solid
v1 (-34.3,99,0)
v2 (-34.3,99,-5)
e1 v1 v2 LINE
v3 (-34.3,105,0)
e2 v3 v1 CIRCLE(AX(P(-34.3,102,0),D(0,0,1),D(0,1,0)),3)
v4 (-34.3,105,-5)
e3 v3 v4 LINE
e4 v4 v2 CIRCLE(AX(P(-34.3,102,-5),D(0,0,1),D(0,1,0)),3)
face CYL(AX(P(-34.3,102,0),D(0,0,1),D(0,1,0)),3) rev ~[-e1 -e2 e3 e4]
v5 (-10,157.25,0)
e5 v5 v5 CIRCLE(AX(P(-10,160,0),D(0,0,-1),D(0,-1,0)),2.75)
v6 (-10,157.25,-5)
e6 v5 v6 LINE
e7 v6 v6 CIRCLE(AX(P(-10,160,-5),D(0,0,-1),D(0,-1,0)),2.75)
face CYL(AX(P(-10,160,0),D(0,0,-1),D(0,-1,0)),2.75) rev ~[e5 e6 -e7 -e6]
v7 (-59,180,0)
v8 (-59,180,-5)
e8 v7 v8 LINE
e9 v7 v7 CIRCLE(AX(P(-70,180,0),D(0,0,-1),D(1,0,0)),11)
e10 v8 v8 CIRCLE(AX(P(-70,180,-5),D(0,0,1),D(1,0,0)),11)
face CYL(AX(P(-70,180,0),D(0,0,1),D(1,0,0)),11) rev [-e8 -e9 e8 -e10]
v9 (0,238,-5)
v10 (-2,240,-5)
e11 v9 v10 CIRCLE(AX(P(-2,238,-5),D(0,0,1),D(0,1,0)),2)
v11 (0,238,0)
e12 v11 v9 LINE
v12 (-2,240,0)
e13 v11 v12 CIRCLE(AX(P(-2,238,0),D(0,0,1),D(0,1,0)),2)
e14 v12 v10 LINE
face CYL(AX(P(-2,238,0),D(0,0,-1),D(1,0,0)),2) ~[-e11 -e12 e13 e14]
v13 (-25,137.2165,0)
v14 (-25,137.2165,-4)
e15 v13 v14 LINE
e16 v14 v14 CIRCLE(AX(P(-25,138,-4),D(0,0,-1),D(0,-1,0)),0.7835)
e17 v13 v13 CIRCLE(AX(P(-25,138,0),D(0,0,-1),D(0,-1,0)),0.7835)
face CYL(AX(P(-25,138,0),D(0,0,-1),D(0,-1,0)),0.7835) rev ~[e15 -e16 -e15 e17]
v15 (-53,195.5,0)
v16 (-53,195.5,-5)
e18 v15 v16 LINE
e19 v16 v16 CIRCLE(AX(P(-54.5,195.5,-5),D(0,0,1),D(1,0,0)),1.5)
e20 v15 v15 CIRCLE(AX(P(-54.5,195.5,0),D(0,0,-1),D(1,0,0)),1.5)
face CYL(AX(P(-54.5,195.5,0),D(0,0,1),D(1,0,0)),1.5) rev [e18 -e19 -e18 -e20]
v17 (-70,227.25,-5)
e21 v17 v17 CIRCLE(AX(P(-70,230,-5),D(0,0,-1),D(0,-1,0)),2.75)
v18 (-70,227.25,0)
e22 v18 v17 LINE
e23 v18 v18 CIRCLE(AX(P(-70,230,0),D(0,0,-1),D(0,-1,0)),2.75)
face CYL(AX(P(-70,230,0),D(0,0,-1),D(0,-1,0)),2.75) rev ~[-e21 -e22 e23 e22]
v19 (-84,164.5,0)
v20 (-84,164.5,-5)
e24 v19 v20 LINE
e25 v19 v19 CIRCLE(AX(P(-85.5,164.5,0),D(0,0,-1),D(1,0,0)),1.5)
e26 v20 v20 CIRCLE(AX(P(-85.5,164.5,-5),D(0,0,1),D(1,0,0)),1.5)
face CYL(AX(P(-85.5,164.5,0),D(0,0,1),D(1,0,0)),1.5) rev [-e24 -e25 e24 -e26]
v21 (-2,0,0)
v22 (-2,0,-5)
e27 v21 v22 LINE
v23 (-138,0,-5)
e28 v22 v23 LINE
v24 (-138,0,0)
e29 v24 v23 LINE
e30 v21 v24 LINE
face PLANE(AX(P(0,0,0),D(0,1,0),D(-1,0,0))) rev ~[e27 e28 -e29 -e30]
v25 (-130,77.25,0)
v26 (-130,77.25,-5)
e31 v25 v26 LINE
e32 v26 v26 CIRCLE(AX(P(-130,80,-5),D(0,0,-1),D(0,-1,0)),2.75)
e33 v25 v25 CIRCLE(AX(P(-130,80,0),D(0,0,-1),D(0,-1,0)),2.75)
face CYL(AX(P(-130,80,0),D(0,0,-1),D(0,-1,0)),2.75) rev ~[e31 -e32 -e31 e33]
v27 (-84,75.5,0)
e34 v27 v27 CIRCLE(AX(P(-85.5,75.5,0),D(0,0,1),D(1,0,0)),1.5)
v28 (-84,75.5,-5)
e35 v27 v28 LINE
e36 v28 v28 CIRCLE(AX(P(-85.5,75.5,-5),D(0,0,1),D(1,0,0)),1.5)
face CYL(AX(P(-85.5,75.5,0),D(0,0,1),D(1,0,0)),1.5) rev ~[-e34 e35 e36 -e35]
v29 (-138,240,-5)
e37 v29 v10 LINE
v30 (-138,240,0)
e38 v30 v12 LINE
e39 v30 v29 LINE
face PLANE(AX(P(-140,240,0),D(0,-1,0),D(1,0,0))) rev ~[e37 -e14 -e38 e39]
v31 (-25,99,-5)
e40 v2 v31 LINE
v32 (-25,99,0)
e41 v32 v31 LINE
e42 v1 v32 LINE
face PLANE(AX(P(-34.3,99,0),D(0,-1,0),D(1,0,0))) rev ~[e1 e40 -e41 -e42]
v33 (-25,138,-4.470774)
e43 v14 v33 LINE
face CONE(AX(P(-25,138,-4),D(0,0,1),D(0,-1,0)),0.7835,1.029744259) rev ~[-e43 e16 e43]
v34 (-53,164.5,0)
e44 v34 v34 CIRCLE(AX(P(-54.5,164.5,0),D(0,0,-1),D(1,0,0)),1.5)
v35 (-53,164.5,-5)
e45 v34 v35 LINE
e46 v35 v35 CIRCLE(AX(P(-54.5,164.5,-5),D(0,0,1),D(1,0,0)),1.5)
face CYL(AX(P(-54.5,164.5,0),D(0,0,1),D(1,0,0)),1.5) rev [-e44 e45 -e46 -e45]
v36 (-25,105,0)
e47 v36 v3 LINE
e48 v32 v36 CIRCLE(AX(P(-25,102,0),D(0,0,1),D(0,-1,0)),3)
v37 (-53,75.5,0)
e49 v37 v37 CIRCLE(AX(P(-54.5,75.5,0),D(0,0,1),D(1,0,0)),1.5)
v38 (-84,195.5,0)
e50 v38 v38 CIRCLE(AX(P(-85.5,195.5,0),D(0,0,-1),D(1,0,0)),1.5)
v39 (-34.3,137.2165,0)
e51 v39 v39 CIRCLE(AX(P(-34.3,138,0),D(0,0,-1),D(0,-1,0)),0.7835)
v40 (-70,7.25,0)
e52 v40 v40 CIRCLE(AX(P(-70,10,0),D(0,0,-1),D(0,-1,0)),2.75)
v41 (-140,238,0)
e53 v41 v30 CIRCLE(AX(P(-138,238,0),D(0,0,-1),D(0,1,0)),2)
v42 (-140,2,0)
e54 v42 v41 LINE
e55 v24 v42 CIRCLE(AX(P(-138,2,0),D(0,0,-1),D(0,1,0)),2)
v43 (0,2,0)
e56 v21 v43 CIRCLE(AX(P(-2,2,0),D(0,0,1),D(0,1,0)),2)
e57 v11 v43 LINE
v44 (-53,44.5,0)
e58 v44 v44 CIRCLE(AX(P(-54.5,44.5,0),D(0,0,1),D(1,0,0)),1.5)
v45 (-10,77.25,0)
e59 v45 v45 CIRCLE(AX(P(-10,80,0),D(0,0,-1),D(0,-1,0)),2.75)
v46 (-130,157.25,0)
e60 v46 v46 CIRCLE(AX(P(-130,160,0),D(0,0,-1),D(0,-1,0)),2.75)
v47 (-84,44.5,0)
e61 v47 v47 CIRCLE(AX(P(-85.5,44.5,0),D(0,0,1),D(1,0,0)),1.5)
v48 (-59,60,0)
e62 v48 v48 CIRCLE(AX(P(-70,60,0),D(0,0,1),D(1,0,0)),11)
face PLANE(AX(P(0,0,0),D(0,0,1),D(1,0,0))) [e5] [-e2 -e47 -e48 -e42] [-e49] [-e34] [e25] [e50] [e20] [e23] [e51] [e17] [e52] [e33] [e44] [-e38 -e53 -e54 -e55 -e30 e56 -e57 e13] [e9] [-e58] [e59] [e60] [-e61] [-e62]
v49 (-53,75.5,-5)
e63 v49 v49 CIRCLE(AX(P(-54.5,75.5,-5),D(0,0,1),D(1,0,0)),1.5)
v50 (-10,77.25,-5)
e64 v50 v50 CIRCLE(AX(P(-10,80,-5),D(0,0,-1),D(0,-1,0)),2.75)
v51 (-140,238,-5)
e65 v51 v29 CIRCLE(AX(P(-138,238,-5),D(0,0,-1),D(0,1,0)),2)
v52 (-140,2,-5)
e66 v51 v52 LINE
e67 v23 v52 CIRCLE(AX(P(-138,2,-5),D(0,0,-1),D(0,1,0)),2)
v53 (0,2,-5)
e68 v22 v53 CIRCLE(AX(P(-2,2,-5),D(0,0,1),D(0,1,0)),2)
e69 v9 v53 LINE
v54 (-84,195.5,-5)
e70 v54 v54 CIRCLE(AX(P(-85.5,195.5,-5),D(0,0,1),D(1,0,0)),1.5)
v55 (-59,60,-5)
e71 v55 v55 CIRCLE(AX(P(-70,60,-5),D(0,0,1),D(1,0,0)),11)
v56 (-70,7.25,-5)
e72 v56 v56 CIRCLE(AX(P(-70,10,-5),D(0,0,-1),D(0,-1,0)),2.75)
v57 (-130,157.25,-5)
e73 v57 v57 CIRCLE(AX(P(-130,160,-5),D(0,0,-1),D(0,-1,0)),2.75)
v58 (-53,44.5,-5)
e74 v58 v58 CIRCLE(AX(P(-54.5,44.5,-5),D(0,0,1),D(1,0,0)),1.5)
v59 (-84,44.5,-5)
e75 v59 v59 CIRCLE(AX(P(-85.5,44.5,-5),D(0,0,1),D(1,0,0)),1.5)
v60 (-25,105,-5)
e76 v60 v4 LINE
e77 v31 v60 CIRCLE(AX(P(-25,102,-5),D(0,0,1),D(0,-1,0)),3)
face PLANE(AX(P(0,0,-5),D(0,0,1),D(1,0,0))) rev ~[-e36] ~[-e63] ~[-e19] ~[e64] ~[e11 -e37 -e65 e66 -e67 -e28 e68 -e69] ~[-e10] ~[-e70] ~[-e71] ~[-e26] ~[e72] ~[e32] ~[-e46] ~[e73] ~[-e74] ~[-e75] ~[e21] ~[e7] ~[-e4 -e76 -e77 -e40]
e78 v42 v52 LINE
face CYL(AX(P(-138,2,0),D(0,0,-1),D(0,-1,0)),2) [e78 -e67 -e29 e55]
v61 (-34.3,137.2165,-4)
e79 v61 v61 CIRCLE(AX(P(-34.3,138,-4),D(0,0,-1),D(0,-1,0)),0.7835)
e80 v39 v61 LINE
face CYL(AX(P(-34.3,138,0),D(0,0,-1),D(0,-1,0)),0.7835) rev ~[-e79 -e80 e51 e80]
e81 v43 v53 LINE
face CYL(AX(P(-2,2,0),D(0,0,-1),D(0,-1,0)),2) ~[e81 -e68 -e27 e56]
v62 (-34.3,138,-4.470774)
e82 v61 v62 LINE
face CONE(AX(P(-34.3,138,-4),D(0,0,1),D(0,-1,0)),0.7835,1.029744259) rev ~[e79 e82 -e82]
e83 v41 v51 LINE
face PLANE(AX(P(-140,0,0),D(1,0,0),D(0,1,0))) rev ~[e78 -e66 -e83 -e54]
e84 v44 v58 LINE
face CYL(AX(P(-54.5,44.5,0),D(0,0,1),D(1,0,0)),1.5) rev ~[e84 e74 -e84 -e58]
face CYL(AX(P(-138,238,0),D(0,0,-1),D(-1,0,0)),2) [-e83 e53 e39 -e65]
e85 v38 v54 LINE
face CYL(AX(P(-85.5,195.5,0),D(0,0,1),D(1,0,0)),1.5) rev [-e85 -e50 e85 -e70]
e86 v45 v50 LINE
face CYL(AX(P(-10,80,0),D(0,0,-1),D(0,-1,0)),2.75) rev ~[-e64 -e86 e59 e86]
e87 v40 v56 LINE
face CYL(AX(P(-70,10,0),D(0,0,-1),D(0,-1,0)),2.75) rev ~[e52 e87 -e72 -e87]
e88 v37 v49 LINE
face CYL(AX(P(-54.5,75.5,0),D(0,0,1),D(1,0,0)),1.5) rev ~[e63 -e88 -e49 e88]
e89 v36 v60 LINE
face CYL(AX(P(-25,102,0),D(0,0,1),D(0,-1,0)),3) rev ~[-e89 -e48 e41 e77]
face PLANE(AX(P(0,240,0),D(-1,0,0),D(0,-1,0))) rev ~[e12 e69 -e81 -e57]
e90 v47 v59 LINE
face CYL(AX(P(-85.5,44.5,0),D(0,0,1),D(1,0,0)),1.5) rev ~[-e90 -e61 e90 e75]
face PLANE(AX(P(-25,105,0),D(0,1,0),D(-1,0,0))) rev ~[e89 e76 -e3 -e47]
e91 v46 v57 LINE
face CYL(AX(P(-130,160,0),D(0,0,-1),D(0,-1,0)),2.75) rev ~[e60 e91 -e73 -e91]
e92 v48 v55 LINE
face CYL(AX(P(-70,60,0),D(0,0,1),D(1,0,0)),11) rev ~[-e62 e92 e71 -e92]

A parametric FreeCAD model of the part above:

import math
import FreeCAD as App
import Part
import Sketcher

V = App.Vector
Q = App.Units.Quantity


def edges_at(feature, points):
    """Names of the edges that pass closest to the given points."""
    edges = feature.Shape.Edges
    near = lambda p: min(range(len(edges)), key=lambda i: edges[i].distToShape(Part.Vertex(*p))[0])
    return sorted({f"Edge{near(p) + 1}" for p in points})


def add_polygon(sketch, points):
    """Adds a closed chain of lines whose ends are joined by coincident constraints."""
    first, n = sketch.GeometryCount, len(points)
    for a, b in zip(points, points[1:] + points[:1]):
        sketch.addGeometry(Part.LineSegment(App.Vector(*a, 0), App.Vector(*b, 0)), False)
    for i in range(n):
        sketch.addConstraint(Sketcher.Constraint("Coincident", first + i, 2, first + (i + 1) % n, 1))

doc = App.newDocument("Part")
params = doc.addObject("Spreadsheet::Sheet", "Params")
for row, (alias, value) in enumerate([
    ("sketch1_width", "140 mm"),
    ("sketch1_height", "240 mm"),
    ("pad1_length", "5 mm"),
    ("fillet_radius", "2 mm"),
    ("sketch2_diameter", "22 mm"),
    ("sketch2_diameter2", "3 mm"),
    ("sketch3_diameter", "5.5 mm"),
    ("hole_diameter", "5.5 mm"),
    ("sketch4_radius", "3 mm"),
    ("sketch4_width", "9.3 mm"),
    ("pocket2_length", "10 mm"),
    ("hole2_diameter", "1.567 mm"),
    ("hole2_depth", "4 mm"),
], start=1):
    params.set(f"A{row}", alias)
    params.set(f"B{row}", "=" + value)
    params.setAlias(f"B{row}", alias)

body = doc.addObject("PartDesign::Body", "Body")

sketch1 = doc.addObject("Sketcher::SketchObject", "Sketch")
body.addObject(sketch1)
sketch1.AttachmentSupport = (doc.XY_Plane, [""])
sketch1.MapMode = "FlatFace"
add_polygon(sketch1, [(-140, 0), (0, 0), (0, 240), (-140, 240)])
sketch1.addConstraint([
    Sketcher.Constraint("Horizontal", 0),
    Sketcher.Constraint("Vertical", 1),
    Sketcher.Constraint("Horizontal", 2),
    Sketcher.Constraint("Vertical", 3),
    Sketcher.Constraint("Coincident", 0, 2, -1, 1),
    Sketcher.Constraint("DistanceX", 0, 1, 0, 2, Q("140 mm")),
    Sketcher.Constraint("DistanceY", 1, 1, 1, 2, Q("240 mm")),
])
sketch1.setExpression("Constraints[9]", "Params.sketch1_width")
sketch1.setExpression("Constraints[10]", "Params.sketch1_height")
pad1 = doc.addObject("PartDesign::Pad", "Pad")
body.addObject(pad1)
pad1.Profile = sketch1
pad1.setExpression("Length", "Params.pad1_length")
pad1.Reversed = True
doc.recompute()

fillet = doc.addObject("PartDesign::Fillet", "Fillet")
body.addObject(fillet)
fillet.Base = (pad1, edges_at(pad1, [
    (0, 0, -2.5),
    (0, 240, -2.5),
    (-140, 240, -2.5),
    (-140, 0, -2.5),
]))
fillet.setExpression("Radius", "Params.fillet_radius")

sketch2 = doc.addObject("Sketcher::SketchObject", "Sketch001")
body.addObject(sketch2)
sketch2.AttachmentSupport = (doc.XY_Plane, [""])
sketch2.MapMode = "FlatFace"
sketch2.addGeometry([
    Part.Circle(V(-70, 60, 0), V(0, 0, 1), 11),
    Part.Circle(V(-85.5, 75.5, 0), V(0, 0, 1), 1.5),
    Part.Circle(V(-85.5, 44.5, 0), V(0, 0, 1), 1.5),
    Part.Circle(V(-54.5, 44.5, 0), V(0, 0, 1), 1.5),
    Part.Circle(V(-54.5, 75.5, 0), V(0, 0, 1), 1.5),
], False)
sketch2.addConstraint([
    Sketcher.Constraint("Equal", 1, 2),
    Sketcher.Constraint("Equal", 2, 3),
    Sketcher.Constraint("Equal", 3, 4),
    Sketcher.Constraint("Horizontal", 2, 3, 3, 3),
    Sketcher.Constraint("Horizontal", 1, 3, 4, 3),
    Sketcher.Constraint("Vertical", 1, 3, 2, 3),
    Sketcher.Constraint("Vertical", 3, 3, 4, 3),
    Sketcher.Constraint("Diameter", 0, Q("22 mm")),
    Sketcher.Constraint("Diameter", 1, Q("3 mm")),
    Sketcher.Constraint("DistanceY", -1, 1, 0, 3, Q("60 mm")),
    Sketcher.Constraint("DistanceY", 2, 3, 1, 3, Q("31 mm")),
    Sketcher.Constraint("DistanceX", 2, 3, 3, 3, Q("31 mm")),
    Sketcher.Constraint("DistanceX", 1, 3, 0, 3, Q("15.5 mm")),
    Sketcher.Constraint("DistanceY", 0, 3, 1, 3, Q("15.5 mm")),
    Sketcher.Constraint("DistanceX", 0, 3, -1, 1, Q("70 mm")),
])
sketch2.setExpression("Constraints[7]", "Params.sketch2_diameter")
sketch2.setExpression("Constraints[8]", "Params.sketch2_diameter2")
pocket1 = doc.addObject("PartDesign::Pocket", "Pocket")
body.addObject(pocket1)
pocket1.Profile = sketch2
pocket1.Type = "ThroughAll"
doc.recompute()

datumplane = doc.addObject("PartDesign::Plane", "DatumPlane")
body.addObject(datumplane)
datumplane.AttachmentSupport = (doc.XZ_Plane, [""])
datumplane.MapMode = "FlatFace"
datumplane.AttachmentOffset = App.Placement(V(0, 0, -120), App.Rotation())
mirrored = doc.addObject("PartDesign::Mirrored", "Mirrored")
body.addObject(mirrored)
mirrored.Originals = [pocket1]
mirrored.MirrorPlane = (datumplane, [""])
body.Tip = mirrored

sketch3 = doc.addObject("Sketcher::SketchObject", "Sketch002")
body.addObject(sketch3)
sketch3.AttachmentSupport = (doc.XY_Plane, [""])
sketch3.MapMode = "FlatFace"
sketch3.addGeometry([
    Part.Circle(V(-70, 60, 0), V(0, 0, 1), 2.8),
    Part.Circle(V(-70, 10, 0), V(0, 0, 1), 2.8),
    Part.Circle(V(-130, 80, 0), V(0, 0, 1), 2.8),
    Part.Circle(V(-130, 160, 0), V(0, 0, 1), 2.8),
    Part.Circle(V(-10, 160, 0), V(0, 0, 1), 2.8),
    Part.Circle(V(-10, 80, 0), V(0, 0, 1), 2.8),
    Part.Circle(V(-70, 230, 0), V(0, 0, 1), 2.8),
], False)
sketch3.addConstraint([
    Sketcher.Constraint("Equal", 0, 1),
    Sketcher.Constraint("Equal", 1, 2),
    Sketcher.Constraint("Equal", 2, 3),
    Sketcher.Constraint("Equal", 3, 4),
    Sketcher.Constraint("Equal", 4, 5),
    Sketcher.Constraint("Equal", 5, 6),
    Sketcher.Constraint("Horizontal", 3, 3, 4, 3),
    Sketcher.Constraint("Horizontal", 2, 3, 5, 3),
    Sketcher.Constraint("Vertical", 0, 3, 1, 3),
    Sketcher.Constraint("Vertical", 2, 3, 3, 3),
    Sketcher.Constraint("Vertical", 4, 3, 5, 3),
    Sketcher.Constraint("Vertical", 1, 3, 6, 3),
    Sketcher.Constraint("Diameter", 0, Q("5.5 mm")),
    Sketcher.Constraint("DistanceX", 0, 3, -1, 1, Q("70 mm")),
    Sketcher.Constraint("DistanceY", -1, 1, 0, 3, Q("60 mm")),
    Sketcher.Constraint("DistanceY", -1, 1, 1, 3, Q("10 mm")),
    Sketcher.Constraint("DistanceX", 2, 3, -1, 1, Q("130 mm")),
    Sketcher.Constraint("DistanceY", -1, 1, 2, 3, Q("80 mm")),
    Sketcher.Constraint("DistanceY", -1, 1, 3, 3, Q("160 mm")),
    Sketcher.Constraint("DistanceX", 4, 3, -1, 1, Q("10 mm")),
    Sketcher.Constraint("DistanceY", -1, 1, 6, 3, Q("230 mm")),
])
sketch3.setExpression("Constraints[12]", "Params.sketch3_diameter")
doc.recompute()
hole = doc.addObject("PartDesign::Hole", "Hole")
body.addObject(hole)
hole.Profile = sketch3
hole.ThreadType = "None"
hole.setExpression("Diameter", "Params.hole_diameter")
hole.DepthType = "ThroughAll"

sketch4 = doc.addObject("Sketcher::SketchObject", "Sketch003")
body.addObject(sketch4)
sketch4.AttachmentSupport = (doc.XY_Plane, [""])
sketch4.MapMode = "FlatFace"
sketch4.addGeometry([
    Part.ArcOfCircle(Part.Circle(V(-25, 102, 0), V(0, 0, 1), 3), math.radians(-90), math.radians(90)),
    Part.LineSegment(V(-25, 105, 0), V(-34.3, 105, 0)),
    Part.ArcOfCircle(Part.Circle(V(-34.3, 102, 0), V(0, 0, 1), 3), math.radians(90), math.radians(270)),
    Part.LineSegment(V(-34.3, 99, 0), V(-25, 99, 0)),
], False)
sketch4.addConstraint([
    Sketcher.Constraint("Tangent", 0, 2, 1, 1),
    Sketcher.Constraint("Tangent", 1, 2, 2, 1),
    Sketcher.Constraint("Tangent", 2, 2, 3, 1),
    Sketcher.Constraint("Tangent", 3, 2, 0, 1),
    Sketcher.Constraint("Horizontal", 1),
    Sketcher.Constraint("Horizontal", 3),
    Sketcher.Constraint("Radius", 0, Q("3 mm")),
    Sketcher.Constraint("DistanceX", 1, 2, 1, 1, Q("9.3 mm")),
    Sketcher.Constraint("DistanceX", 0, 3, -1, 1, Q("25 mm")),
    Sketcher.Constraint("DistanceY", -1, 1, 0, 3, Q("102 mm")),
])
sketch4.setExpression("Constraints[6]", "Params.sketch4_radius")
sketch4.setExpression("Constraints[7]", "Params.sketch4_width")
pocket2 = doc.addObject("PartDesign::Pocket", "Pocket001")
body.addObject(pocket2)
pocket2.Profile = sketch4
pocket2.setExpression("Length", "Params.pocket2_length")

sketch5 = doc.addObject("Sketcher::SketchObject", "Sketch004")
body.addObject(sketch5)
sketch5.AttachmentSupport = (doc.XY_Plane, [""])
sketch5.MapMode = "FlatFace"
sketch5.addGeometry([
    Part.Circle(V(-25, 138, 0), V(0, 0, 1), 0.8),
    Part.Circle(V(-34.3, 138, 0), V(0, 0, 1), 0.8),
], False)
sketch5.addConstraint([
    Sketcher.Constraint("Equal", 0, 1),
    Sketcher.Constraint("Horizontal", 0, 3, 1, 3),
    Sketcher.Constraint("Diameter", 0, Q("1.567 mm")),
    Sketcher.Constraint("DistanceX", 0, 3, -1, 1, Q("25 mm")),
    Sketcher.Constraint("DistanceY", -1, 1, 0, 3, Q("138 mm")),
    Sketcher.Constraint("DistanceX", 1, 3, -1, 1, Q("34.3 mm")),
])
doc.recompute()
hole2 = doc.addObject("PartDesign::Hole", "Hole001")
body.addObject(hole2)
hole2.Profile = sketch5
hole2.ThreadType = "None"
hole2.setExpression("Diameter", "Params.hole2_diameter")
hole2.DepthType = "Dimension"
hole2.setExpression("Depth", "Params.hole2_depth")
hole2.DrillPoint = "Angled"
hole2.DrillPointAngle = 118

doc.recompute()
